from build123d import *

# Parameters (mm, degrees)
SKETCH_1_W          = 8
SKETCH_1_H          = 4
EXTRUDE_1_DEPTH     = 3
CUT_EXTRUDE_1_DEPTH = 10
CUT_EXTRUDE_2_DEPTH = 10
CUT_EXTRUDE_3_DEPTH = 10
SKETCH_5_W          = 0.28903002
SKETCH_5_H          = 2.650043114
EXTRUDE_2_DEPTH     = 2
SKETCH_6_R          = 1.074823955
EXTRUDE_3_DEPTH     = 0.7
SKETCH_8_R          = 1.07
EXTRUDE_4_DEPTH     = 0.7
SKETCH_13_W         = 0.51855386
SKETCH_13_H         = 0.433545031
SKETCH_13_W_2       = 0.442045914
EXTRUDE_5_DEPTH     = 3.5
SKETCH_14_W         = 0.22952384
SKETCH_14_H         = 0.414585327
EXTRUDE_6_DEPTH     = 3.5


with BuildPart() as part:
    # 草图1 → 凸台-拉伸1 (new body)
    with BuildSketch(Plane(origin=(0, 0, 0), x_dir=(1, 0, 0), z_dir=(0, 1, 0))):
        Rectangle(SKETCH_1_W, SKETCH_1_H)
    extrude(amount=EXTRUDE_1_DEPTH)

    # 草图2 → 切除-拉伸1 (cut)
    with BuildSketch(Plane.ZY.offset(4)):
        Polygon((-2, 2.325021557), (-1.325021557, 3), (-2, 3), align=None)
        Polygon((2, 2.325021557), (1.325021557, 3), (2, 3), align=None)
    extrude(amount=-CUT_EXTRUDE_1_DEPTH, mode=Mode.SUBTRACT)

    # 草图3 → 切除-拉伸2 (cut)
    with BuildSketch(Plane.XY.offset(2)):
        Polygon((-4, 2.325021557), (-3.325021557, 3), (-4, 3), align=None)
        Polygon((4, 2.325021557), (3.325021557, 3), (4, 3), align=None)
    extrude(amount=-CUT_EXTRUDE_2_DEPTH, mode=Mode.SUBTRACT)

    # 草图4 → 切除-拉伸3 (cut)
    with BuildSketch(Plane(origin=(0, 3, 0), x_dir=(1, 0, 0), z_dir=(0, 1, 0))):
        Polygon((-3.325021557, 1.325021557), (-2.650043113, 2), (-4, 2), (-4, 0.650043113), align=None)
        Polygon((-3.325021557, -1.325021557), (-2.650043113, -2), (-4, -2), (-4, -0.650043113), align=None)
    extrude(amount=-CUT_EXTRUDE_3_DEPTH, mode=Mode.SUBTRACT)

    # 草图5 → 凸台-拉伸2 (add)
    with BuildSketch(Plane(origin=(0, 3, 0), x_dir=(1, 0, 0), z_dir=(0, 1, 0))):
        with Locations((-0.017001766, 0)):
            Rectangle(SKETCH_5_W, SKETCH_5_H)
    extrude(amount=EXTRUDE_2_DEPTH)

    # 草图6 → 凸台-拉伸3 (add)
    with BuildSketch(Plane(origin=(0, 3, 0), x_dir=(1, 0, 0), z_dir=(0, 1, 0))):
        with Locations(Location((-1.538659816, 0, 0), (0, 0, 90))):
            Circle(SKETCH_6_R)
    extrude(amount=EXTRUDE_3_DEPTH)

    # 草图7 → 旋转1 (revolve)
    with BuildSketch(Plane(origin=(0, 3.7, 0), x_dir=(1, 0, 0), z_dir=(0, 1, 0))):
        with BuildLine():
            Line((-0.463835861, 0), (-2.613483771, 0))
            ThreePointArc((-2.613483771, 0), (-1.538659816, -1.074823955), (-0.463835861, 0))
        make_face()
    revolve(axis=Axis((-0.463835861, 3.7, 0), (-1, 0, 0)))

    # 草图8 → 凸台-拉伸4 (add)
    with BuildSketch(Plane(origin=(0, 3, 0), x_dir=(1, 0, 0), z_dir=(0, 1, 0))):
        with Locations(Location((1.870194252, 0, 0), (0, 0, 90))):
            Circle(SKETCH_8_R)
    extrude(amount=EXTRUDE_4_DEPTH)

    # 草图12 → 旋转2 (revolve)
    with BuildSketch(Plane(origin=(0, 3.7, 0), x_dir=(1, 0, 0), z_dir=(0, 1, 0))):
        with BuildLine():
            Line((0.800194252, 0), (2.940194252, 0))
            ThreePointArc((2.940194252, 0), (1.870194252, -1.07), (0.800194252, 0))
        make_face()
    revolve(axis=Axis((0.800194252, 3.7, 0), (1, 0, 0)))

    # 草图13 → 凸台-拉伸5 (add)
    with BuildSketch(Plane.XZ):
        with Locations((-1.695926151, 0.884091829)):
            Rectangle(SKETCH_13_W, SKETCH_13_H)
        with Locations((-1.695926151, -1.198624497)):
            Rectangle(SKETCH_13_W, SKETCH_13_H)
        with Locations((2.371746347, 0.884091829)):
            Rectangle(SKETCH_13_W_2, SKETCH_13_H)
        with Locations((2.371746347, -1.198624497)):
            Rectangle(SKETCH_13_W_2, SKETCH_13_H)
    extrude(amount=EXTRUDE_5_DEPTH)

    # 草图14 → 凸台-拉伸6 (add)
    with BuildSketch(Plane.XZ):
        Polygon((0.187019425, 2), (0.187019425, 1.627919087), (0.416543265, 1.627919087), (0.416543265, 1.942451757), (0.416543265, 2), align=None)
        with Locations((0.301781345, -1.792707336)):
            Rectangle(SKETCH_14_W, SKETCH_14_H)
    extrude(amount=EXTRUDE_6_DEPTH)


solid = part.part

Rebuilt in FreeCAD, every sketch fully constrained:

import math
import FreeCAD as App
import Part
import Sketcher
Q = App.Units.Quantity


def add_polygon(sketch, points):
    """Adds a closed chain of lines whose ends are joined by coincident constraints."""
    first, n = sketch.GeometryCount, len(points)
    for a, b in zip(points, points[1:] + points[:1]):
        sketch.addGeometry(Part.LineSegment(App.Vector(*a, 0), App.Vector(*b, 0)), False)
    for i in range(n):
        sketch.addConstraint(Sketcher.Constraint("Coincident", first + i, 2, first + (i + 1) % n, 1))

doc = App.newDocument("Part")
body = doc.addObject("PartDesign::Body", "Body")

# Sketch on XZ plane
sketch1 = doc.addObject("Sketcher::SketchObject", "Sketch")
body.addObject(sketch1)
sketch1.AttachmentSupport = (doc.XZ_Plane, [""])
sketch1.MapMode = "FlatFace"
add_polygon(sketch1, [(-4, -2), (-4, 2), (4, 2), (4, -2)])  # lines 0-3
sketch1.addConstraint(Sketcher.Constraint("Vertical", 0))
sketch1.addConstraint(Sketcher.Constraint("Horizontal", 1))
sketch1.addConstraint(Sketcher.Constraint("Vertical", 2))
sketch1.addConstraint(Sketcher.Constraint("Horizontal", 3))
sketch1.addConstraint(Sketcher.Constraint("Symmetric", 0, 2, 2, 2, -1, 1))
sketch1.addConstraint(Sketcher.Constraint("DistanceX", 1, 1, 1, 2, Q("8 mm")))
sketch1.addConstraint(Sketcher.Constraint("DistanceY", 0, 1, 0, 2, Q("4 mm")))
pad1 = doc.addObject("PartDesign::Pad", "Pad")
body.addObject(pad1)
pad1.Profile = sketch1
pad1.Length = 3
pad1.Reversed = True

# Sketch on YZ plane
sketch2 = doc.addObject("Sketcher::SketchObject", "Sketch001")
body.addObject(sketch2)
sketch2.AttachmentSupport = (doc.YZ_Plane, [""])
sketch2.MapMode = "FlatFace"
sketch2.AttachmentOffset = App.Placement(App.Vector(0, 0, -4), App.Rotation())
add_polygon(sketch2, [(2.3, -2), (3, -1.3), (3, -2)])  # lines 0-2
add_polygon(sketch2, [(3, 1.3), (2.3, 2), (3, 2)])  # lines 3-5
sketch2.addConstraint(Sketcher.Constraint("Vertical", 1))
sketch2.addConstraint(Sketcher.Constraint("Horizontal", 2))
sketch2.addConstraint(Sketcher.Constraint("Horizontal", 4))
sketch2.addConstraint(Sketcher.Constraint("Vertical", 5))
sketch2.addConstraint(Sketcher.Constraint("Symmetric", 2, 2, 3, 2, -1))
sketch2.addConstraint(Sketcher.Constraint("Symmetric", 0, 2, 5, 2, -1))
sketch2.addConstraint(Sketcher.Constraint("Perpendicular", 0, 3))
sketch2.addConstraint(Sketcher.Constraint("DistanceX", -1, 1, 0, 2, Q("3 mm")))
sketch2.addConstraint(Sketcher.Constraint("DistanceY", 1, 2, -1, 1, Q("2 mm")))
sketch2.addConstraint(Sketcher.Constraint("DistanceX", 2, 2, 2, 1, Q("0.674978 mm")))
pocket1 = doc.addObject("PartDesign::Pocket", "Pocket")
body.addObject(pocket1)
pocket1.Profile = sketch2
pocket1.Length = 10
pocket1.Reversed = True

# Sketch on XY plane
sketch3 = doc.addObject("Sketcher::SketchObject", "Sketch002")
body.addObject(sketch3)
sketch3.AttachmentSupport = (doc.XY_Plane, [""])
sketch3.MapMode = "FlatFace"
sketch3.AttachmentOffset = App.Placement(App.Vector(0, 0, 2), App.Rotation())
add_polygon(sketch3, [(-4, 2.3), (-3.3, 3), (-4, 3)])  # lines 0-2
add_polygon(sketch3, [(3.3, 3), (4, 2.3), (4, 3)])  # lines 3-5
sketch3.addConstraint(Sketcher.Constraint("Horizontal", 1))
sketch3.addConstraint(Sketcher.Constraint("Vertical", 2))
sketch3.addConstraint(Sketcher.Constraint("Vertical", 4))
sketch3.addConstraint(Sketcher.Constraint("Horizontal", 5))
sketch3.addConstraint(Sketcher.Constraint("Symmetric", 2, 2, 3, 2, -2))
sketch3.addConstraint(Sketcher.Constraint("Symmetric", 0, 2, 5, 2, -2))
sketch3.addConstraint(Sketcher.Constraint("Perpendicular", 0, 3))
sketch3.addConstraint(Sketcher.Constraint("DistanceY", -1, 1, 0, 2, Q("3 mm")))
sketch3.addConstraint(Sketcher.Constraint("DistanceX", 1, 2, -1, 1, Q("4 mm")))
sketch3.addConstraint(Sketcher.Constraint("DistanceX", 1, 2, 1, 1, Q("0.674978 mm")))
pocket2 = doc.addObject("PartDesign::Pocket", "Pocket001")
body.addObject(pocket2)
pocket2.Profile = sketch3
pocket2.Length = 10

# Sketch on XZ plane
sketch4 = doc.addObject("Sketcher::SketchObject", "Sketch003")
body.addObject(sketch4)
sketch4.AttachmentSupport = (doc.XZ_Plane, [""])
sketch4.MapMode = "FlatFace"
sketch4.AttachmentOffset = App.Placement(App.Vector(0, 0, -3), App.Rotation())
add_polygon(sketch4, [(-3.3, -1.3), (-2.7, -2), (-4, -2), (-4, -0.7)])  # lines 0-3
add_polygon(sketch4, [(-2.7, 2), (-3.3, 1.3), (-4, 0.7), (-4, 2)])  # lines 4-7
sketch4.addConstraint(Sketcher.Constraint("Horizontal", 1))
sketch4.addConstraint(Sketcher.Constraint("Vertical", 2))
sketch4.addConstraint(Sketcher.Constraint("Vertical", 6))
sketch4.addConstraint(Sketcher.Constraint("Horizontal", 7))
sketch4.addConstraint(Sketcher.Constraint("Symmetric", 3, 2, 4, 2, -1))
sketch4.addConstraint(Sketcher.Constraint("Symmetric", 2, 2, 5, 2, -1))
sketch4.addConstraint(Sketcher.Constraint("Symmetric", 0, 2, 7, 2, -1))
sketch4.addConstraint(Sketcher.Constraint("Parallel", 0, 3))
sketch4.addConstraint(Sketcher.Constraint("Perpendicular", 3, 4))
sketch4.addConstraint(Sketcher.Constraint("Equal", 0, 3))
sketch4.addConstraint(Sketcher.Constraint("DistanceY", 0, 2, -1, 1, Q("2 mm")))
sketch4.addConstraint(Sketcher.Constraint("DistanceX", 1, 2, -1, 1, Q("4 mm")))
sketch4.addConstraint(Sketcher.Constraint("DistanceX", 1, 2, 1, 1, Q("1.349957 mm")))
pocket3 = doc.addObject("PartDesign::Pocket", "Pocket002")
body.addObject(pocket3)
pocket3.Profile = sketch4
pocket3.Length = 10
pocket3.Reversed = True

# Sketch on XZ plane
sketch5 = doc.addObject("Sketcher::SketchObject", "Sketch004")
body.addObject(sketch5)
sketch5.AttachmentSupport = (doc.XZ_Plane, [""])
sketch5.MapMode = "FlatFace"
sketch5.AttachmentOffset = App.Placement(App.Vector(0, 0, -3), App.Rotation())
add_polygon(sketch5, [(-0.16, -1.33), (-0.16, 1.33), (0.13, 1.33), (0.13, -1.33)])  # lines 0-3
sketch5.addConstraint(Sketcher.Constraint("Vertical", 0))
sketch5.addConstraint(Sketcher.Constraint("Horizontal", 1))
sketch5.addConstraint(Sketcher.Constraint("Vertical", 2))
sketch5.addConstraint(Sketcher.Constraint("Horizontal", 3))
sketch5.addConstraint(Sketcher.Constraint("DistanceX", 1, 1, 1, 2, Q("0.28903 mm")))
sketch5.addConstraint(Sketcher.Constraint("DistanceY", 0, 1, 0, 2, Q("2.650043 mm")))
sketch5.addConstraint(Sketcher.Constraint("DistanceY", -1, 1, 0, 2, Q("1.325022 mm")))
sketch5.addConstraint(Sketcher.Constraint("DistanceX", 0, 2, -1, 1, Q("0.161517 mm")))
pad2 = doc.addObject("PartDesign::Pad", "Pad001")
body.addObject(pad2)
pad2.Profile = sketch5
pad2.Length = 2
pad2.Reversed = True

# Sketch on XZ plane
sketch6 = doc.addObject("Sketcher::SketchObject", "Sketch005")
body.addObject(sketch6)
sketch6.AttachmentSupport = (doc.XZ_Plane, [""])
sketch6.MapMode = "FlatFace"
sketch6.AttachmentOffset = App.Placement(App.Vector(0, 0, -3), App.Rotation())
sketch6.addGeometry(Part.Circle(App.Vector(-1.5, 0, 0), App.Vector(0, 0, 1), 1.1), False)
sketch6.addConstraint(Sketcher.Constraint("PointOnObject", 0, 3, -1))
sketch6.addConstraint(Sketcher.Constraint("Diameter", 0, Q("2.149648 mm")))
sketch6.addConstraint(Sketcher.Constraint("DistanceX", 0, 3, -1, 1, Q("1.53866 mm")))
pad3 = doc.addObject("PartDesign::Pad", "Pad002")
body.addObject(pad3)
pad3.Profile = sketch6
pad3.Length = 0.7
pad3.Reversed = True

# Sketch on XZ plane
sketch7 = doc.addObject("Sketcher::SketchObject", "Sketch006")
body.addObject(sketch7)
sketch7.AttachmentSupport = (doc.XZ_Plane, [""])
sketch7.MapMode = "FlatFace"
sketch7.AttachmentOffset = App.Placement(App.Vector(0, 0, -3.7), App.Rotation())
sketch7.addGeometry(Part.LineSegment(App.Vector(-0.5, 0, 0), App.Vector(-2.6, 0, 0)), False)
sketch7.addGeometry(Part.ArcOfCircle(Part.Circle(App.Vector(-1.5, 0, 0), App.Vector(0, 0, 1), 1.1), math.radians(0), math.radians(180)), False)
sketch7.addConstraint(Sketcher.Constraint("Coincident", 0, 1, 1, 1))
sketch7.addConstraint(Sketcher.Constraint("Coincident", 1, 2, 0, 2))
sketch7.addConstraint(Sketcher.Constraint("Horizontal", 0))
sketch7.addConstraint(Sketcher.Constraint("PointOnObject", 1, 3, -1))
sketch7.addConstraint(Sketcher.Constraint("PointOnObject", 0, 1, -1))
sketch7.addConstraint(Sketcher.Constraint("Radius", 1, Q("1.074824 mm")))
sketch7.addConstraint(Sketcher.Constraint("DistanceX", 1, 3, -1, 1, Q("1.53866 mm")))
revolution = doc.addObject("PartDesign::Revolution", "Revolution")
body.addObject(revolution)
revolution.Profile = sketch7
revolution.ReferenceAxis = (sketch7, ["H_Axis"])
revolution.Angle = 360

# Sketch on XZ plane
sketch8 = doc.addObject("Sketcher::SketchObject", "Sketch007")
body.addObject(sketch8)
sketch8.AttachmentSupport = (doc.XZ_Plane, [""])
sketch8.MapMode = "FlatFace"
sketch8.AttachmentOffset = App.Placement(App.Vector(0, 0, -3), App.Rotation())
sketch8.addGeometry(Part.Circle(App.Vector(1.9, 0, 0), App.Vector(0, 0, 1), 1.1), False)
sketch8.addConstraint(Sketcher.Constraint("PointOnObject", 0, 3, -1))
sketch8.addConstraint(Sketcher.Constraint("Diameter", 0, Q("2.14 mm")))
sketch8.addConstraint(Sketcher.Constraint("DistanceX", -1, 1, 0, 3, Q("1.870194 mm")))
pad4 = doc.addObject("PartDesign::Pad", "Pad003")
body.addObject(pad4)
pad4.Profile = sketch8
pad4.Length = 0.7
pad4.Reversed = True

# Sketch on XZ plane
sketch9 = doc.addObject("Sketcher::SketchObject", "Sketch008")
body.addObject(sketch9)
sketch9.AttachmentSupport = (doc.XZ_Plane, [""])
sketch9.MapMode = "FlatFace"
sketch9.AttachmentOffset = App.Placement(App.Vector(0, 0, -3.7), App.Rotation())
sketch9.addGeometry(Part.LineSegment(App.Vector(2.9, 0, 0), App.Vector(0.8, 0, 0)), False)
sketch9.addGeometry(Part.ArcOfCircle(Part.Circle(App.Vector(1.9, 0, 0), App.Vector(0, 0, 1), 1.1), math.radians(0), math.radians(180)), False)
sketch9.addConstraint(Sketcher.Constraint("Coincident", 0, 1, 1, 1))
sketch9.addConstraint(Sketcher.Constraint("Coincident", 1, 2, 0, 2))
sketch9.addConstraint(Sketcher.Constraint("Horizontal", 0))
sketch9.addConstraint(Sketcher.Constraint("PointOnObject", 1, 3, -1))
sketch9.addConstraint(Sketcher.Constraint("PointOnObject", 0, 1, -1))
sketch9.addConstraint(Sketcher.Constraint("Radius", 1, Q("1.07 mm")))
sketch9.addConstraint(Sketcher.Constraint("DistanceX", -1, 1, 1, 3, Q("1.870194 mm")))
revolution2 = doc.addObject("PartDesign::Revolution", "Revolution001")
body.addObject(revolution2)
revolution2.Profile = sketch9
revolution2.ReferenceAxis = (sketch9, ["H_Axis"])
revolution2.Angle = 360

# Sketch on XZ plane
sketch10 = doc.addObject("Sketcher::SketchObject", "Sketch009")
body.addObject(sketch10)
sketch10.AttachmentSupport = (doc.XZ_Plane, [""])
sketch10.MapMode = "FlatFace"
add_polygon(sketch10, [(-1.96, 1.1), (-1.96, 0.67), (-1.44, 0.67), (-1.44, 1.1)])  # lines 0-3
add_polygon(sketch10, [(-1.96, -0.98), (-1.96, -1.42), (-1.44, -1.42), (-1.44, -0.98)])  # lines 4-7
add_polygon(sketch10, [(2.15, 1.1), (2.15, 0.67), (2.59, 0.67), (2.59, 1.1)])  # lines 8-11
add_polygon(sketch10, [(2.15, -0.98), (2.15, -1.42), (2.59, -1.42), (2.59, -0.98)])  # lines 12-15
sketch10.addConstraint(Sketcher.Constraint("Vertical", 0))
sketch10.addConstraint(Sketcher.Constraint("Horizontal", 1))
sketch10.addConstraint(Sketcher.Constraint("Vertical", 2))
sketch10.addConstraint(Sketcher.Constraint("Horizontal", 3))
sketch10.addConstraint(Sketcher.Constraint("Vertical", 4))
sketch10.addConstraint(Sketcher.Constraint("Horizontal", 5))
sketch10.addConstraint(Sketcher.Constraint("Vertical", 6))
sketch10.addConstraint(Sketcher.Constraint("Horizontal", 7))
sketch10.addConstraint(Sketcher.Constraint("Vertical", 8))
sketch10.addConstraint(Sketcher.Constraint("Horizontal", 9))
sketch10.addConstraint(Sketcher.Constraint("Vertical", 10))
sketch10.addConstraint(Sketcher.Constraint("Horizontal", 11))
sketch10.addConstraint(Sketcher.Constraint("Vertical", 12))
sketch10.addConstraint(Sketcher.Constraint("Horizontal", 13))
sketch10.addConstraint(Sketcher.Constraint("Vertical", 14))
sketch10.addConstraint(Sketcher.Constraint("Horizontal", 15))
sketch10.addConstraint(Sketcher.Constraint("Horizontal", 1, 2, 8, 2))
sketch10.addConstraint(Sketcher.Constraint("Horizontal", 3, 2, 10, 2))
sketch10.addConstraint(Sketcher.Constraint("Horizontal", 5, 2, 12, 2))
sketch10.addConstraint(Sketcher.Constraint("Horizontal", 7, 2, 14, 2))
sketch10.addConstraint(Sketcher.Constraint("Vertical", 3, 2, 4, 2))
sketch10.addConstraint(Sketcher.Constraint("Vertical", 2, 2, 5, 2))
sketch10.addConstraint(Sketcher.Constraint("Vertical", 11, 2, 12, 2))
sketch10.addConstraint(Sketcher.Constraint("Vertical", 10, 2, 13, 2))
sketch10.addConstraint(Sketcher.Constraint("Equal", 2, 4))
sketch10.addConstraint(Sketcher.Constraint("DistanceX", 1, 1, 1, 2, Q("0.518554 mm")))
sketch10.addConstraint(Sketcher.Constraint("DistanceX", 9, 1, 9, 2, Q("0.442046 mm")))
sketch10.addConstraint(Sketcher.Constraint("DistanceY", 0, 2, 0, 1, Q("0.433545 mm")))
sketch10.addConstraint(Sketcher.Constraint("DistanceY", -1, 1, 0, 2, Q("0.667319 mm")))
sketch10.addConstraint(Sketcher.Constraint("DistanceX", 1, 2, -1, 1, Q("1.436649 mm")))
sketch10.addConstraint(Sketcher.Constraint("DistanceY", 6, 2, -1, 1, Q("0.981852 mm")))
sketch10.addConstraint(Sketcher.Constraint("DistanceX", -1, 1, 9, 2, Q("2.592769 mm")))
pad5 = doc.addObject("PartDesign::Pad", "Pad004")
body.addObject(pad5)
pad5.Profile = sketch10
pad5.Length = 3.5

# Sketch on XZ plane
sketch11 = doc.addObject("Sketcher::SketchObject", "Sketch010")
body.addObject(sketch11)
sketch11.AttachmentSupport = (doc.XZ_Plane, [""])
sketch11.MapMode = "FlatFace"
add_polygon(sketch11, [(0.19, 2), (0.19, 1.63), (0.42, 1.63), (0.42, 2)])  # lines 0-3
add_polygon(sketch11, [(0.19, -1.59), (0.19, -2), (0.42, -2), (0.42, -1.59)])  # lines 4-7
sketch11.addConstraint(Sketcher.Constraint("Vertical", 0))
sketch11.addConstraint(Sketcher.Constraint("Horizontal", 1))
sketch11.addConstraint(Sketcher.Constraint("Vertical", 2))
sketch11.addConstraint(Sketcher.Constraint("Horizontal", 3))
sketch11.addConstraint(Sketcher.Constraint("Vertical", 4))
sketch11.addConstraint(Sketcher.Constraint("Horizontal", 5))
sketch11.addConstraint(Sketcher.Constraint("Vertical", 6))
sketch11.addConstraint(Sketcher.Constraint("Horizontal", 7))
sketch11.addConstraint(Sketcher.Constraint("Symmetric", 3, 2, 4, 2, -1))
sketch11.addConstraint(Sketcher.Constraint("Vertical", 2, 2, 5, 2))
sketch11.addConstraint(Sketcher.Constraint("DistanceY", -1, 1, 2, 2, Q("2 mm")))
sketch11.addConstraint(Sketcher.Constraint("DistanceY", 0, 2, 0, 1, Q("0.372081 mm")))
sketch11.addConstraint(Sketcher.Constraint("DistanceX", 1, 1, 1, 2, Q("0.229524 mm")))
sketch11.addConstraint(Sketcher.Constraint("DistanceY", 4, 2, 4, 1, Q("0.414585 mm")))
sketch11.addConstraint(Sketcher.Constraint("DistanceX", -1, 1, 0, 2, Q("0.187019 mm")))
pad6 = doc.addObject("PartDesign::Pad", "Pad005")
body.addObject(pad6)
pad6.Profile = sketch11
pad6.Length = 3.5

doc.recompute()
